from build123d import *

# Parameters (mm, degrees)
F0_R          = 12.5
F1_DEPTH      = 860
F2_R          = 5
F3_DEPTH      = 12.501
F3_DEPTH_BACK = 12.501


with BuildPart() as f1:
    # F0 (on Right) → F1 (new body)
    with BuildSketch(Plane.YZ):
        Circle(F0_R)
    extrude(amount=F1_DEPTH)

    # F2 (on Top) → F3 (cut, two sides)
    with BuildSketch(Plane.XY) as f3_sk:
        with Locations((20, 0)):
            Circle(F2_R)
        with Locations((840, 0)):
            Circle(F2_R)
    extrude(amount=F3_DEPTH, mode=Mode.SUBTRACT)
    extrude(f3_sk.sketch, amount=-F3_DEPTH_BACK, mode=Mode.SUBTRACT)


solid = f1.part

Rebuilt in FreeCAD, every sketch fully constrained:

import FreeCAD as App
import Part
import Sketcher
from FreeCAD import Vector

doc = App.newDocument("Part")
body = doc.addObject("PartDesign::Body", "Body")

# Sketch on YZ plane
sketch1 = doc.addObject("Sketcher::SketchObject", "Sketch")
body.addObject(sketch1)
sketch1.AttachmentSupport = (doc.YZ_Plane, [""])
sketch1.MapMode = "FlatFace"
sketch1.addGeometry(Part.Circle(Vector(0, 0, 0), Vector(0, 0, 1), 12), False)
sketch1.addConstraint(Sketcher.Constraint("Coincident", 0, 3, -1, 1))
sketch1.addConstraint(Sketcher.Constraint("Diameter", 0, 25.0))
pad1 = doc.addObject("PartDesign::Pad", "Pad")
body.addObject(pad1)
pad1.Profile = sketch1
pad1.Length = 860

# Sketch on XY plane
sketch2 = doc.addObject("Sketcher::SketchObject", "Sketch001")
body.addObject(sketch2)
sketch2.AttachmentSupport = (doc.XY_Plane, [""])
sketch2.MapMode = "FlatFace"
sketch2.addGeometry(Part.Circle(Vector(20, 0, 0), Vector(0, 0, 1), 5), False)
sketch2.addGeometry(Part.Circle(Vector(840, 0, 0), Vector(0, 0, 1), 5), False)
sketch2.addConstraint(Sketcher.Constraint("Equal", 0, 1))
sketch2.addConstraint(Sketcher.Constraint("PointOnObject", 0, 3, -1))
sketch2.addConstraint(Sketcher.Constraint("PointOnObject", 1, 3, -1))
sketch2.addConstraint(Sketcher.Constraint("Diameter", 0, 10.0))
sketch2.addConstraint(Sketcher.Constraint("DistanceX", -1, 1, 0, 3, 20.0))
sketch2.addConstraint(Sketcher.Constraint("DistanceX", -1, 1, 1, 3, 840.0))
pocket1 = doc.addObject("PartDesign::Pocket", "Pocket")
body.addObject(pocket1)
pocket1.Profile = sketch2
pocket1.Type = "ThroughAll"
pocket1.Midplane = True

doc.recompute()
